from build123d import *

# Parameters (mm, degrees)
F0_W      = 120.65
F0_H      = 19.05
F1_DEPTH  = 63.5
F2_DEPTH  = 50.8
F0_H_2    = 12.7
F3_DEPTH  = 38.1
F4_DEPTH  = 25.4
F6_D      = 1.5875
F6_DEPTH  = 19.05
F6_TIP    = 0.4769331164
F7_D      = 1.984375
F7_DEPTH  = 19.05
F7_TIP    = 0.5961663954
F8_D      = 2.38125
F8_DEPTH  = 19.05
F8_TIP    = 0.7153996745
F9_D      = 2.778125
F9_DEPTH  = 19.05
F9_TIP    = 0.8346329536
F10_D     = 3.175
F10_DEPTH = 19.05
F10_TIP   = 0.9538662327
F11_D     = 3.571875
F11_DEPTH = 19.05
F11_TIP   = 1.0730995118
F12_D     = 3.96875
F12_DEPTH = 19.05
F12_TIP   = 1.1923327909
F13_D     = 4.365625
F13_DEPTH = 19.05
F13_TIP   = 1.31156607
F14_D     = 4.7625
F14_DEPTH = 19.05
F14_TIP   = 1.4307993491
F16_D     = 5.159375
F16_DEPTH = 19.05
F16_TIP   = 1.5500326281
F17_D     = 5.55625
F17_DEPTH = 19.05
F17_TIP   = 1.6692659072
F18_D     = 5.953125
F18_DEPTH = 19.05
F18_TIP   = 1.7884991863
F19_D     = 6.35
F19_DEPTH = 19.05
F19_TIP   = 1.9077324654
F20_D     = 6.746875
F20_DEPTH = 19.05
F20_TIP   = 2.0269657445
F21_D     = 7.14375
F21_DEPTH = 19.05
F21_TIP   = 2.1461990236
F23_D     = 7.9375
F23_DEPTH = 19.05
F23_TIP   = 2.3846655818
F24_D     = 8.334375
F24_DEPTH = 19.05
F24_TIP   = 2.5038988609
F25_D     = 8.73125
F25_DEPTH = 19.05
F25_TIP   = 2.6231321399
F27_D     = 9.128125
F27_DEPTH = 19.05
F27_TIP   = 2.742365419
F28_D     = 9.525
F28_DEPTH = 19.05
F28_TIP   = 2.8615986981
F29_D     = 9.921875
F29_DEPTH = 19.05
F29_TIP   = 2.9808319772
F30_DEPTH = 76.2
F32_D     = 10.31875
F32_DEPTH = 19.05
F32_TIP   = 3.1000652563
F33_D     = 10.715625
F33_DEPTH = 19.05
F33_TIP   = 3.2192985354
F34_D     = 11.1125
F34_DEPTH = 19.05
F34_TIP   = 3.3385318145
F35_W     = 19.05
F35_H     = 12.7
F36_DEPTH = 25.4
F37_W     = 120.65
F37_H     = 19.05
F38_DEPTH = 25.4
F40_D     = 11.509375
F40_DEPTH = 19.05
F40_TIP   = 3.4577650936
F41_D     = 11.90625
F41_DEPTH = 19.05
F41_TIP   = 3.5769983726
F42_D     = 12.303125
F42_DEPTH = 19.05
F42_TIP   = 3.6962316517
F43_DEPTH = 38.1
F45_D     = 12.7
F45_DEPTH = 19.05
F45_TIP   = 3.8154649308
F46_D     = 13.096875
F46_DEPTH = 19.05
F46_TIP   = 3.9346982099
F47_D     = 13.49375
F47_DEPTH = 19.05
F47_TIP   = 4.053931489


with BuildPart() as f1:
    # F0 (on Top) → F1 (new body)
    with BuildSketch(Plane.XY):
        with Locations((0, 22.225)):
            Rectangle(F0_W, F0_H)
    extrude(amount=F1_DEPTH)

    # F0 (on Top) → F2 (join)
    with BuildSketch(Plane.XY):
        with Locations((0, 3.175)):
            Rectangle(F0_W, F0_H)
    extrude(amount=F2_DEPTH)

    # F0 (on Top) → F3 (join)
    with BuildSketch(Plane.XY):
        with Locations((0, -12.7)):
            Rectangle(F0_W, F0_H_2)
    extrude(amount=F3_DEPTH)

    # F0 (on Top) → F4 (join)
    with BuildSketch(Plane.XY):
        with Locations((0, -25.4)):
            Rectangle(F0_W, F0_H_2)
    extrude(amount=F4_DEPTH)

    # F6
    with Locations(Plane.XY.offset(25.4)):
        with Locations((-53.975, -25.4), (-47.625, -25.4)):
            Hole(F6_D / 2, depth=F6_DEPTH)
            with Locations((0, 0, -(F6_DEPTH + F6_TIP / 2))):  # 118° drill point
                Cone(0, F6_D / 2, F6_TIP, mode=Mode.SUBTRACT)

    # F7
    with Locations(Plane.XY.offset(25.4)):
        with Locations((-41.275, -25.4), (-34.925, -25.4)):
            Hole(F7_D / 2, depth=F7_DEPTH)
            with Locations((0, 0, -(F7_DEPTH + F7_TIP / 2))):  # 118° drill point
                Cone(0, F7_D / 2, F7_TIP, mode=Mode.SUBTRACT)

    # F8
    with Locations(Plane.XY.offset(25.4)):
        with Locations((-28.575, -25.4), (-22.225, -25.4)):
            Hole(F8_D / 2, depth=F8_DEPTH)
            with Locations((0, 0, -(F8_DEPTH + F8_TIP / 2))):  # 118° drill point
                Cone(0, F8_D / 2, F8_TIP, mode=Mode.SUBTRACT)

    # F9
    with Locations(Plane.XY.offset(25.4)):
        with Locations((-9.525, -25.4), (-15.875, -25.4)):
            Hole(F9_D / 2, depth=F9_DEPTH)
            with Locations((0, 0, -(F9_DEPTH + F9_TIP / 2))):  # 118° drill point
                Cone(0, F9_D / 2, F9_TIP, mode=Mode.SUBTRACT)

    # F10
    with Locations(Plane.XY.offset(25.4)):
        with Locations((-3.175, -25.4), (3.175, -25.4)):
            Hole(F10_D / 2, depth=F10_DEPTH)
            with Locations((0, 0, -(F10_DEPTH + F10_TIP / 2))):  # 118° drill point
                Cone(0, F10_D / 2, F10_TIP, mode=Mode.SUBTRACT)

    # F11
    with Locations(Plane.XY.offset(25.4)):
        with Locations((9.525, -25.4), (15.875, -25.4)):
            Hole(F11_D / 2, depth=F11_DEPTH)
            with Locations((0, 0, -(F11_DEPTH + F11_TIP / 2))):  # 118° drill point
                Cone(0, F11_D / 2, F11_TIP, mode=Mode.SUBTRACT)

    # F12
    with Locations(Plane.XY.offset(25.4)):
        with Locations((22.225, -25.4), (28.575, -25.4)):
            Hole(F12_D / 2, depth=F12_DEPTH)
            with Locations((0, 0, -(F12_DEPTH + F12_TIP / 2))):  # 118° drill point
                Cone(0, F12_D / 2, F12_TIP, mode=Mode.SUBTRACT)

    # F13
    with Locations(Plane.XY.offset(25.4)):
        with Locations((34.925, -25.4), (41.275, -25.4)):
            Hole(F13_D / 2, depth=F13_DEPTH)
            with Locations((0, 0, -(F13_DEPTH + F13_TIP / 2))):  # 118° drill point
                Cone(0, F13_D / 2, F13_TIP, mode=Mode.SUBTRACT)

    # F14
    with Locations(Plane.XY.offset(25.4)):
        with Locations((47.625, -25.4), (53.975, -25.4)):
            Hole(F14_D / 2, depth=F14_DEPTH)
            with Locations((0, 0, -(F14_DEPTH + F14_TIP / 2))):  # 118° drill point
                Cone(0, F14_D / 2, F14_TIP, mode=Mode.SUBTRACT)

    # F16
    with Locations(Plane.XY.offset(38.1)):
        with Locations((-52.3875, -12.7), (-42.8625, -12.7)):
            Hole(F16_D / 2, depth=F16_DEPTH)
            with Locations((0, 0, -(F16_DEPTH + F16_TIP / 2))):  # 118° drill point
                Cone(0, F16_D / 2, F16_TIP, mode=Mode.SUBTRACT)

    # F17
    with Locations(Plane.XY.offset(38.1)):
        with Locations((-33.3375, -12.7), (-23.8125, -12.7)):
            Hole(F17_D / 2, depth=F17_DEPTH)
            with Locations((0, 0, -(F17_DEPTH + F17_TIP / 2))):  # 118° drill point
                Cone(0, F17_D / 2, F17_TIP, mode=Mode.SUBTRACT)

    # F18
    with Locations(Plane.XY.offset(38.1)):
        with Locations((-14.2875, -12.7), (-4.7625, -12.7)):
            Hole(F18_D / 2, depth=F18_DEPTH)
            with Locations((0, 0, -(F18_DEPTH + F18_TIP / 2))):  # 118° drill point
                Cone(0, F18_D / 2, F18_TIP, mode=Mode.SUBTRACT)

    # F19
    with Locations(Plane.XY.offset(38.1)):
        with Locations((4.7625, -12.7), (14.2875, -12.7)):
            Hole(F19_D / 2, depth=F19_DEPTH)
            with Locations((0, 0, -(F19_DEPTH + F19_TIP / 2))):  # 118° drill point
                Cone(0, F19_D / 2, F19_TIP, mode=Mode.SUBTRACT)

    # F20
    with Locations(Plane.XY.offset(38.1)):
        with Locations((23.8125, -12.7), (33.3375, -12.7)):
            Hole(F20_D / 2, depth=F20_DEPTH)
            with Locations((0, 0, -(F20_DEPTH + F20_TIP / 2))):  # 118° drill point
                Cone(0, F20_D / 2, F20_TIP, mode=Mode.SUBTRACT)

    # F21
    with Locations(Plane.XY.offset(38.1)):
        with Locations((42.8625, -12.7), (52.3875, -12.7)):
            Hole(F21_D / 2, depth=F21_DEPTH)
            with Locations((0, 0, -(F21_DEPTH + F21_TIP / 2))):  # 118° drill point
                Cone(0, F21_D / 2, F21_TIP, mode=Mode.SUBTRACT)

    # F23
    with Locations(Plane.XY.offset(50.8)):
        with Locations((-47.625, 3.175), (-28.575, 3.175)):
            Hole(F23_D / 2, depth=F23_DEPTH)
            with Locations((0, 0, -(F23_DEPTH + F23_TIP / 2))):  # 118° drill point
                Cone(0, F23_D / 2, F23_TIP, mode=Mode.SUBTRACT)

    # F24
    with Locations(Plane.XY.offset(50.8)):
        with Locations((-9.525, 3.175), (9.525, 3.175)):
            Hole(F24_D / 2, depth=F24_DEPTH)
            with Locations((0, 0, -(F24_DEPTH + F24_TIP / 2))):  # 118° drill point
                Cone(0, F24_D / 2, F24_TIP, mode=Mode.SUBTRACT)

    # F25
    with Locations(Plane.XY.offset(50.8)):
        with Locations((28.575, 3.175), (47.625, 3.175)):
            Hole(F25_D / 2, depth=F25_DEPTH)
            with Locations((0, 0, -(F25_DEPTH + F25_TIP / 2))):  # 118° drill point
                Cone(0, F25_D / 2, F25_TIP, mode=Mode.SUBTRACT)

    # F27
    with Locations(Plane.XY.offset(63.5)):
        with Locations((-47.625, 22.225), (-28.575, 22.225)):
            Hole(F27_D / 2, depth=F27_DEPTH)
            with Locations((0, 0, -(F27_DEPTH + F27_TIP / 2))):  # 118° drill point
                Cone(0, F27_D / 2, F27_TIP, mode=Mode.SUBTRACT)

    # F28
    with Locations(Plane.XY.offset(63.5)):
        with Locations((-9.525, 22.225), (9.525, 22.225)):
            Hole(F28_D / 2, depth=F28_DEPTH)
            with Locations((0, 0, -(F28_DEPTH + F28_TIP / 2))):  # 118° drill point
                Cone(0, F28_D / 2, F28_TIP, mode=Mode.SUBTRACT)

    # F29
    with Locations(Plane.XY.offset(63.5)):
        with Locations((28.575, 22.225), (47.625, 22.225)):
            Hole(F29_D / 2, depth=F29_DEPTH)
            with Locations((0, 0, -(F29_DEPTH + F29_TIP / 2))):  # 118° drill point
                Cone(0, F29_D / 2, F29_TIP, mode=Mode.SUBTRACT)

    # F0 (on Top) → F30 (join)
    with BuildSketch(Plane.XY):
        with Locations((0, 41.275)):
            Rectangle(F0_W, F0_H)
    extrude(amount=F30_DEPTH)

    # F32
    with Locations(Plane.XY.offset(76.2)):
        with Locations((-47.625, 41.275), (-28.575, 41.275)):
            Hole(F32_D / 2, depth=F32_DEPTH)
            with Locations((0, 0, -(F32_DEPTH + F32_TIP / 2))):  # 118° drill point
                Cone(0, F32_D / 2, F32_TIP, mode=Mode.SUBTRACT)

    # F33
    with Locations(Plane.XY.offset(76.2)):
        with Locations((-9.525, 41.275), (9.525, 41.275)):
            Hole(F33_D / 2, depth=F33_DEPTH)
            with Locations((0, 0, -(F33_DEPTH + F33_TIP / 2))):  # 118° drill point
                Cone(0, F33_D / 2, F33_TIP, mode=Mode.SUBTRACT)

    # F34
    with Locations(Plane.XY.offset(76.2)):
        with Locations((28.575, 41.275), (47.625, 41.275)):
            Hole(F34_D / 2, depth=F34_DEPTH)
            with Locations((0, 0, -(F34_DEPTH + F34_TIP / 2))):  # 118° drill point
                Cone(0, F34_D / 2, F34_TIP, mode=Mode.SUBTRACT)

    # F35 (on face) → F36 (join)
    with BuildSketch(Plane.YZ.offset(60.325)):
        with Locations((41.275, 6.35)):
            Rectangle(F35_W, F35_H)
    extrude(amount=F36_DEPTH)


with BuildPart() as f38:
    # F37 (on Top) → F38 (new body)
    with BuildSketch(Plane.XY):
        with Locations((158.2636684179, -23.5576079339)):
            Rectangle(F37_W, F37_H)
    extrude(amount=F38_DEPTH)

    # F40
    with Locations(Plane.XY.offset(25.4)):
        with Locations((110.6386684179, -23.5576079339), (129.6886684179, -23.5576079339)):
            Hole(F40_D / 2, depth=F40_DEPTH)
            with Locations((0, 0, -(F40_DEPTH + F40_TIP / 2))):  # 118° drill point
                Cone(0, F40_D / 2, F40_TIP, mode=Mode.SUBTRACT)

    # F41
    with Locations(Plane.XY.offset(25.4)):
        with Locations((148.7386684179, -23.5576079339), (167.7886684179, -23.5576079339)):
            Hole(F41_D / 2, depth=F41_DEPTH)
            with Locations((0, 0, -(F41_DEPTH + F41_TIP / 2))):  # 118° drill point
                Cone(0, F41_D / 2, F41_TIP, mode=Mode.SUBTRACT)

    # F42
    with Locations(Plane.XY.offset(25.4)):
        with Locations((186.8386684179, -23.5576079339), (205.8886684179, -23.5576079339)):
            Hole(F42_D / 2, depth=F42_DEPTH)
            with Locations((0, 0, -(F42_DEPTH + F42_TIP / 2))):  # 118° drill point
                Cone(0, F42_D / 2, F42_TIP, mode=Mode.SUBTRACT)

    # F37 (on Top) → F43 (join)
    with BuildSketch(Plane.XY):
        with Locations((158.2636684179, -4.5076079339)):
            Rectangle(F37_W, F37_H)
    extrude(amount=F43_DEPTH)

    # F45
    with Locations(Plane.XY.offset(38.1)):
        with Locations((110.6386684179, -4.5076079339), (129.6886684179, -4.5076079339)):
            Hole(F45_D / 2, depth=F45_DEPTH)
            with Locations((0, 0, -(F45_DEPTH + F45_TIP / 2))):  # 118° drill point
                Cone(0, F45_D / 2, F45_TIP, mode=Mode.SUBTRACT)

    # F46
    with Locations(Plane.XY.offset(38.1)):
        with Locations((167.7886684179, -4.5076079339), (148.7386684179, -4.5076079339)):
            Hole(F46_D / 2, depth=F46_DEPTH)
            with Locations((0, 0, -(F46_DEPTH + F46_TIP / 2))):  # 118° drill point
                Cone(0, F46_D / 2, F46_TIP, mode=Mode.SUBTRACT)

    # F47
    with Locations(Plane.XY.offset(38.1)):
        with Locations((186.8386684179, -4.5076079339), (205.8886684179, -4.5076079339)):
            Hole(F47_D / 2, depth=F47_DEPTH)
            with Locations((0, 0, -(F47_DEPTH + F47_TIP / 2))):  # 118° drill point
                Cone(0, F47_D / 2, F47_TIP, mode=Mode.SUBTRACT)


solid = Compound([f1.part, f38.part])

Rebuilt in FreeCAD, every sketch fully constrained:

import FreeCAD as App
import Part
import Sketcher
from FreeCAD import Vector
Q = App.Units.Quantity


def add_polygon(sketch, points):
    """Adds a closed chain of lines whose ends are joined by coincident constraints."""
    first, n = sketch.GeometryCount, len(points)
    for a, b in zip(points, points[1:] + points[:1]):
        sketch.addGeometry(Part.LineSegment(App.Vector(*a, 0), App.Vector(*b, 0)), False)
    for i in range(n):
        sketch.addConstraint(Sketcher.Constraint("Coincident", first + i, 2, first + (i + 1) % n, 1))

doc = App.newDocument("Part")
body = doc.addObject("PartDesign::Body", "Body")

sketch1 = body.newObject("Sketcher::SketchObject", "Sketch")
sketch1.AttachmentSupport = (doc.getObject("XY_Plane"), [""])
sketch1.MapMode = "FlatFace"
add_polygon(sketch1, [(-60.325, 31.75), (-60.325, 12.7), (60.325, 12.7), (60.325, 31.75)])
sketch1.addConstraint([
    Sketcher.Constraint("Vertical", 0),
    Sketcher.Constraint("Horizontal", 1),
    Sketcher.Constraint("Vertical", 2),
    Sketcher.Constraint("Horizontal", 3),
    Sketcher.Constraint("DistanceX", 1, 1, 1, 2, Q("4.75 in")),
    Sketcher.Constraint("DistanceY", 0, 2, 0, 1, Q("0.75 in")),
    Sketcher.Constraint("DistanceY", -1, 1, 0, 2, Q("0.5 in")),
    Sketcher.Constraint("DistanceX", 0, 2, -1, 1, Q("2.375 in")),
])
pad1 = body.newObject("PartDesign::Pad", "Pad")
pad1.Profile = sketch1
pad1.Length = Q("2.5 in")

sketch2 = body.newObject("Sketcher::SketchObject", "Sketch001")
sketch2.AttachmentSupport = (doc.getObject("XY_Plane"), [""])
sketch2.MapMode = "FlatFace"
add_polygon(sketch2, [(-60.325, 12.7), (-60.325, -6.35), (60.325, -6.35), (60.325, 12.7)])
sketch2.addConstraint([
    Sketcher.Constraint("Vertical", 0),
    Sketcher.Constraint("Horizontal", 1),
    Sketcher.Constraint("Vertical", 2),
    Sketcher.Constraint("Horizontal", 3),
    Sketcher.Constraint("DistanceX", 1, 1, 1, 2, Q("4.75 in")),
    Sketcher.Constraint("DistanceY", 0, 2, 0, 1, Q("0.75 in")),
    Sketcher.Constraint("DistanceY", -1, 1, 2, 2, Q("0.5 in")),
    Sketcher.Constraint("DistanceX", 0, 2, -1, 1, Q("2.375 in")),
])
pad2 = body.newObject("PartDesign::Pad", "Pad001")
pad2.Profile = sketch2
pad2.Length = Q("2 in")

sketch3 = body.newObject("Sketcher::SketchObject", "Sketch002")
sketch3.AttachmentSupport = (doc.getObject("XY_Plane"), [""])
sketch3.MapMode = "FlatFace"
add_polygon(sketch3, [(-60.325, -6.35), (-60.325, -19.05), (60.325, -19.05), (60.325, -6.35)])
sketch3.addConstraint([
    Sketcher.Constraint("Vertical", 0),
    Sketcher.Constraint("Horizontal", 1),
    Sketcher.Constraint("Vertical", 2),
    Sketcher.Constraint("Horizontal", 3),
    Sketcher.Constraint("DistanceY", 0, 2, 0, 1, Q("0.5 in")),
    Sketcher.Constraint("DistanceX", 1, 1, 1, 2, Q("4.75 in")),
    Sketcher.Constraint("DistanceY", 0, 2, -1, 1, Q("0.75 in")),
    Sketcher.Constraint("DistanceX", 0, 2, -1, 1, Q("2.375 in")),
])
pad3 = body.newObject("PartDesign::Pad", "Pad002")
pad3.Profile = sketch3
pad3.Length = Q("1.5 in")

sketch4 = body.newObject("Sketcher::SketchObject", "Sketch003")
sketch4.AttachmentSupport = (doc.getObject("XY_Plane"), [""])
sketch4.MapMode = "FlatFace"
add_polygon(sketch4, [(-60.325, -19.05), (-60.325, -31.75), (60.325, -31.75), (60.325, -19.05)])
sketch4.addConstraint([
    Sketcher.Constraint("Vertical", 0),
    Sketcher.Constraint("Horizontal", 1),
    Sketcher.Constraint("Vertical", 2),
    Sketcher.Constraint("Horizontal", 3),
    Sketcher.Constraint("DistanceY", 0, 2, 0, 1, Q("0.5 in")),
    Sketcher.Constraint("DistanceX", 1, 1, 1, 2, Q("4.75 in")),
    Sketcher.Constraint("DistanceY", 0, 2, -1, 1, Q("1.25 in")),
    Sketcher.Constraint("DistanceX", 0, 2, -1, 1, Q("2.375 in")),
])
pad4 = body.newObject("PartDesign::Pad", "Pad003")
pad4.Profile = sketch4
pad4.Length = Q("1 in")

sketch5 = body.newObject("Sketcher::SketchObject", "Sketch004")
sketch5.AttachmentSupport = (doc.getObject("XY_Plane"), [""])
sketch5.MapMode = "FlatFace"
sketch5.AttachmentOffset = App.Placement(Vector(0, 0, 1 * 25.4), App.Rotation())
sketch5.addGeometry([
    Part.Circle(Vector(-53.975, -25.4, 0), Vector(0, 0, 1), 0.79375),
    Part.Circle(Vector(-47.625, -25.4, 0), Vector(0, 0, 1), 0.79375),
], False)
sketch5.addConstraint([
    Sketcher.Constraint("Equal", 0, 1),
    Sketcher.Constraint("Horizontal", 0, 3, 1, 3),
    Sketcher.Constraint("Diameter", 0, Q("0.0625 in")),
    Sketcher.Constraint("DistanceY", 0, 3, -1, 1, Q("1 in")),
    Sketcher.Constraint("DistanceX", 0, 3, 1, 3, Q("0.25 in")),
    Sketcher.Constraint("DistanceX", 0, 3, -1, 1, Q("2.125 in")),
])
doc.recompute()
hole = body.newObject("PartDesign::Hole", "Hole")
hole.Profile = sketch5
hole.ThreadType = "None"
hole.Diameter = Q("0.0625 in")
hole.DepthType = "Dimension"
hole.Depth = Q("0.75 in")
hole.DrillPoint = "Angled"
hole.DrillPointAngle = 118

sketch6 = body.newObject("Sketcher::SketchObject", "Sketch005")
sketch6.AttachmentSupport = (doc.getObject("XY_Plane"), [""])
sketch6.MapMode = "FlatFace"
sketch6.AttachmentOffset = App.Placement(Vector(0, 0, 1 * 25.4), App.Rotation())
sketch6.addGeometry([
    Part.Circle(Vector(-41.275, -25.4, 0), Vector(0, 0, 1), 0.992188),
    Part.Circle(Vector(-34.925, -25.4, 0), Vector(0, 0, 1), 0.992188),
], False)
sketch6.addConstraint([
    Sketcher.Constraint("Equal", 0, 1),
    Sketcher.Constraint("Horizontal", 0, 3, 1, 3),
    Sketcher.Constraint("Diameter", 0, Q("0.078125 in")),
    Sketcher.Constraint("DistanceY", 0, 3, -1, 1, Q("1 in")),
    Sketcher.Constraint("DistanceX", 0, 3, 1, 3, Q("0.25 in")),
    Sketcher.Constraint("DistanceX", 0, 3, -1, 1, Q("1.625 in")),
])
doc.recompute()
hole2 = body.newObject("PartDesign::Hole", "Hole001")
hole2.Profile = sketch6
hole2.ThreadType = "None"
hole2.Diameter = Q("0.078125 in")
hole2.DepthType = "Dimension"
hole2.Depth = Q("0.75 in")
hole2.DrillPoint = "Angled"
hole2.DrillPointAngle = 118

sketch7 = body.newObject("Sketcher::SketchObject", "Sketch006")
sketch7.AttachmentSupport = (doc.getObject("XY_Plane"), [""])
sketch7.MapMode = "FlatFace"
sketch7.AttachmentOffset = App.Placement(Vector(0, 0, 1 * 25.4), App.Rotation())
sketch7.addGeometry([
    Part.Circle(Vector(-28.575, -25.4, 0), Vector(0, 0, 1), 1.190625),
    Part.Circle(Vector(-22.225, -25.4, 0), Vector(0, 0, 1), 1.190625),
], False)
sketch7.addConstraint([
    Sketcher.Constraint("Equal", 0, 1),
    Sketcher.Constraint("Horizontal", 0, 3, 1, 3),
    Sketcher.Constraint("Diameter", 0, Q("0.09375 in")),
    Sketcher.Constraint("DistanceY", 0, 3, -1, 1, Q("1 in")),
    Sketcher.Constraint("DistanceX", 0, 3, 1, 3, Q("0.25 in")),
    Sketcher.Constraint("DistanceX", 0, 3, -1, 1, Q("1.125 in")),
])
doc.recompute()
hole3 = body.newObject("PartDesign::Hole", "Hole002")
hole3.Profile = sketch7
hole3.ThreadType = "None"
hole3.Diameter = Q("0.09375 in")
hole3.DepthType = "Dimension"
hole3.Depth = Q("0.75 in")
hole3.DrillPoint = "Angled"
hole3.DrillPointAngle = 118

sketch8 = body.newObject("Sketcher::SketchObject", "Sketch007")
sketch8.AttachmentSupport = (doc.getObject("XY_Plane"), [""])
sketch8.MapMode = "FlatFace"
sketch8.AttachmentOffset = App.Placement(Vector(0, 0, 1 * 25.4), App.Rotation())
sketch8.addGeometry([
    Part.Circle(Vector(-9.525, -25.4, 0), Vector(0, 0, 1), 1.389063),
    Part.Circle(Vector(-15.875, -25.4, 0), Vector(0, 0, 1), 1.389063),
], False)
sketch8.addConstraint([
    Sketcher.Constraint("Equal", 0, 1),
    Sketcher.Constraint("Horizontal", 0, 3, 1, 3),
    Sketcher.Constraint("Diameter", 0, Q("0.109375 in")),
    Sketcher.Constraint("DistanceY", 0, 3, -1, 1, Q("1 in")),
    Sketcher.Constraint("DistanceX", 1, 3, 0, 3, Q("0.25 in")),
    Sketcher.Constraint("DistanceX", 0, 3, -1, 1, Q("0.375 in")),
])
doc.recompute()
hole4 = body.newObject("PartDesign::Hole", "Hole003")
hole4.Profile = sketch8
hole4.ThreadType = "None"
hole4.Diameter = Q("0.109375 in")
hole4.DepthType = "Dimension"
hole4.Depth = Q("0.75 in")
hole4.DrillPoint = "Angled"
hole4.DrillPointAngle = 118

sketch9 = body.newObject("Sketcher::SketchObject", "Sketch008")
sketch9.AttachmentSupport = (doc.getObject("XY_Plane"), [""])
sketch9.MapMode = "FlatFace"
sketch9.AttachmentOffset = App.Placement(Vector(0, 0, 1 * 25.4), App.Rotation())
sketch9.addGeometry([
    Part.Circle(Vector(-3.175, -25.4, 0), Vector(0, 0, 1), 1.5875),
    Part.Circle(Vector(3.175, -25.4, 0), Vector(0, 0, 1), 1.5875),
], False)
sketch9.addConstraint([
    Sketcher.Constraint("Equal", 0, 1),
    Sketcher.Constraint("Symmetric", 0, 3, 1, 3, -2),
    Sketcher.Constraint("Diameter", 0, Q("0.125 in")),
    Sketcher.Constraint("DistanceY", 0, 3, -1, 1, Q("1 in")),
    Sketcher.Constraint("DistanceX", 0, 3, 1, 3, Q("0.25 in")),
])
doc.recompute()
hole5 = body.newObject("PartDesign::Hole", "Hole004")
hole5.Profile = sketch9
hole5.ThreadType = "None"
hole5.Diameter = Q("0.125 in")
hole5.DepthType = "Dimension"
hole5.Depth = Q("0.75 in")
hole5.DrillPoint = "Angled"
hole5.DrillPointAngle = 118

sketch10 = body.newObject("Sketcher::SketchObject", "Sketch009")
sketch10.AttachmentSupport = (doc.getObject("XY_Plane"), [""])
sketch10.MapMode = "FlatFace"
sketch10.AttachmentOffset = App.Placement(Vector(0, 0, 1 * 25.4), App.Rotation())
sketch10.addGeometry([
    Part.Circle(Vector(9.525, -25.4, 0), Vector(0, 0, 1), 1.785937),
    Part.Circle(Vector(15.875, -25.4, 0), Vector(0, 0, 1), 1.785937),
], False)
sketch10.addConstraint([
    Sketcher.Constraint("Equal", 0, 1),
    Sketcher.Constraint("Horizontal", 0, 3, 1, 3),
    Sketcher.Constraint("Diameter", 0, Q("0.140625 in")),
    Sketcher.Constraint("DistanceY", 0, 3, -1, 1, Q("1 in")),
    Sketcher.Constraint("DistanceX", 0, 3, 1, 3, Q("0.25 in")),
    Sketcher.Constraint("DistanceX", -1, 1, 0, 3, Q("0.375 in")),
])
doc.recompute()
hole6 = body.newObject("PartDesign::Hole", "Hole005")
hole6.Profile = sketch10
hole6.ThreadType = "None"
hole6.Diameter = Q("0.140625 in")
hole6.DepthType = "Dimension"
hole6.Depth = Q("0.75 in")
hole6.DrillPoint = "Angled"
hole6.DrillPointAngle = 118

sketch11 = body.newObject("Sketcher::SketchObject", "Sketch010")
sketch11.AttachmentSupport = (doc.getObject("XY_Plane"), [""])
sketch11.MapMode = "FlatFace"
sketch11.AttachmentOffset = App.Placement(Vector(0, 0, 1 * 25.4), App.Rotation())
sketch11.addGeometry([
    Part.Circle(Vector(22.225, -25.4, 0), Vector(0, 0, 1), 1.984375),
    Part.Circle(Vector(28.575, -25.4, 0), Vector(0, 0, 1), 1.984375),
], False)
sketch11.addConstraint([
    Sketcher.Constraint("Equal", 0, 1),
    Sketcher.Constraint("Horizontal", 0, 3, 1, 3),
    Sketcher.Constraint("Diameter", 0, Q("0.15625 in")),
    Sketcher.Constraint("DistanceY", 0, 3, -1, 1, Q("1 in")),
    Sketcher.Constraint("DistanceX", 0, 3, 1, 3, Q("0.25 in")),
    Sketcher.Constraint("DistanceX", -1, 1, 0, 3, Q("0.875 in")),
])
doc.recompute()
hole7 = body.newObject("PartDesign::Hole", "Hole006")
hole7.Profile = sketch11
hole7.ThreadType = "None"
hole7.Diameter = Q("0.15625 in")
hole7.DepthType = "Dimension"
hole7.Depth = Q("0.75 in")
hole7.DrillPoint = "Angled"
hole7.DrillPointAngle = 118

sketch12 = body.newObject("Sketcher::SketchObject", "Sketch011")
sketch12.AttachmentSupport = (doc.getObject("XY_Plane"), [""])
sketch12.MapMode = "FlatFace"
sketch12.AttachmentOffset = App.Placement(Vector(0, 0, 1 * 25.4), App.Rotation())
sketch12.addGeometry([
    Part.Circle(Vector(34.925, -25.4, 0), Vector(0, 0, 1), 2.182812),
    Part.Circle(Vector(41.275, -25.4, 0), Vector(0, 0, 1), 2.182812),
], False)
sketch12.addConstraint([
    Sketcher.Constraint("Equal", 0, 1),
    Sketcher.Constraint("Horizontal", 0, 3, 1, 3),
    Sketcher.Constraint("Diameter", 0, Q("0.171875 in")),
    Sketcher.Constraint("DistanceY", 0, 3, -1, 1, Q("1 in")),
    Sketcher.Constraint("DistanceX", 0, 3, 1, 3, Q("0.25 in")),
    Sketcher.Constraint("DistanceX", -1, 1, 0, 3, Q("1.375 in")),
])
doc.recompute()
hole8 = body.newObject("PartDesign::Hole", "Hole007")
hole8.Profile = sketch12
hole8.ThreadType = "None"
hole8.Diameter = Q("0.171875 in")
hole8.DepthType = "Dimension"
hole8.Depth = Q("0.75 in")
hole8.DrillPoint = "Angled"
hole8.DrillPointAngle = 118

sketch13 = body.newObject("Sketcher::SketchObject", "Sketch012")
sketch13.AttachmentSupport = (doc.getObject("XY_Plane"), [""])
sketch13.MapMode = "FlatFace"
sketch13.AttachmentOffset = App.Placement(Vector(0, 0, 1 * 25.4), App.Rotation())
sketch13.addGeometry([
    Part.Circle(Vector(47.625, -25.4, 0), Vector(0, 0, 1), 2.38125),
    Part.Circle(Vector(53.975, -25.4, 0), Vector(0, 0, 1), 2.38125),
], False)
sketch13.addConstraint([
    Sketcher.Constraint("Equal", 0, 1),
    Sketcher.Constraint("Horizontal", 0, 3, 1, 3),
    Sketcher.Constraint("Diameter", 0, Q("0.1875 in")),
    Sketcher.Constraint("DistanceY", 0, 3, -1, 1, Q("1 in")),
    Sketcher.Constraint("DistanceX", 0, 3, 1, 3, Q("0.25 in")),
    Sketcher.Constraint("DistanceX", -1, 1, 0, 3, Q("1.875 in")),
])
doc.recompute()
hole9 = body.newObject("PartDesign::Hole", "Hole008")
hole9.Profile = sketch13
hole9.ThreadType = "None"
hole9.Diameter = Q("0.1875 in")
hole9.DepthType = "Dimension"
hole9.Depth = Q("0.75 in")
hole9.DrillPoint = "Angled"
hole9.DrillPointAngle = 118

sketch14 = body.newObject("Sketcher::SketchObject", "Sketch013")
sketch14.AttachmentSupport = (doc.getObject("XY_Plane"), [""])
sketch14.MapMode = "FlatFace"
sketch14.AttachmentOffset = App.Placement(Vector(0, 0, 1.5 * 25.4), App.Rotation())
sketch14.addGeometry([
    Part.Circle(Vector(-52.3875, -12.7, 0), Vector(0, 0, 1), 2.579687),
    Part.Circle(Vector(-42.8625, -12.7, 0), Vector(0, 0, 1), 2.579687),
], False)
sketch14.addConstraint([
    Sketcher.Constraint("Equal", 0, 1),
    Sketcher.Constraint("Horizontal", 0, 3, 1, 3),
    Sketcher.Constraint("Diameter", 0, Q("0.203125 in")),
    Sketcher.Constraint("DistanceY", 0, 3, -1, 1, Q("0.5 in")),
    Sketcher.Constraint("DistanceX", 0, 3, -1, 1, Q("2.0625 in")),
    Sketcher.Constraint("DistanceX", 1, 3, -1, 1, Q("1.6875 in")),
])
doc.recompute()
hole10 = body.newObject("PartDesign::Hole", "Hole009")
hole10.Profile = sketch14
hole10.ThreadType = "None"
hole10.Diameter = Q("0.203125 in")
hole10.DepthType = "Dimension"
hole10.Depth = Q("0.75 in")
hole10.DrillPoint = "Angled"
hole10.DrillPointAngle = 118

sketch15 = body.newObject("Sketcher::SketchObject", "Sketch014")
sketch15.AttachmentSupport = (doc.getObject("XY_Plane"), [""])
sketch15.MapMode = "FlatFace"
sketch15.AttachmentOffset = App.Placement(Vector(0, 0, 1.5 * 25.4), App.Rotation())
sketch15.addGeometry([
    Part.Circle(Vector(-33.3375, -12.7, 0), Vector(0, 0, 1), 2.778125),
    Part.Circle(Vector(-23.8125, -12.7, 0), Vector(0, 0, 1), 2.778125),
], False)
sketch15.addConstraint([
    Sketcher.Constraint("Equal", 0, 1),
    Sketcher.Constraint("Horizontal", 0, 3, 1, 3),
    Sketcher.Constraint("Diameter", 0, Q("0.21875 in")),
    Sketcher.Constraint("DistanceY", 0, 3, -1, 1, Q("0.5 in")),
    Sketcher.Constraint("DistanceX", 0, 3, -1, 1, Q("1.3125 in")),
    Sketcher.Constraint("DistanceX", 1, 3, -1, 1, Q("0.9375 in")),
])
doc.recompute()
hole11 = body.newObject("PartDesign::Hole", "Hole010")
hole11.Profile = sketch15
hole11.ThreadType = "None"
hole11.Diameter = Q("0.21875 in")
hole11.DepthType = "Dimension"
hole11.Depth = Q("0.75 in")
hole11.DrillPoint = "Angled"
hole11.DrillPointAngle = 118

sketch16 = body.newObject("Sketcher::SketchObject", "Sketch015")
sketch16.AttachmentSupport = (doc.getObject("XY_Plane"), [""])
sketch16.MapMode = "FlatFace"
sketch16.AttachmentOffset = App.Placement(Vector(0, 0, 1.5 * 25.4), App.Rotation())
sketch16.addGeometry([
    Part.Circle(Vector(-14.2875, -12.7, 0), Vector(0, 0, 1), 2.976562),
    Part.Circle(Vector(-4.7625, -12.7, 0), Vector(0, 0, 1), 2.976562),
], False)
sketch16.addConstraint([
    Sketcher.Constraint("Equal", 0, 1),
    Sketcher.Constraint("Horizontal", 0, 3, 1, 3),
    Sketcher.Constraint("Diameter", 0, Q("0.234375 in")),
    Sketcher.Constraint("DistanceY", 0, 3, -1, 1, Q("0.5 in")),
    Sketcher.Constraint("DistanceX", 0, 3, -1, 1, Q("0.5625 in")),
    Sketcher.Constraint("DistanceX", 1, 3, -1, 1, Q("0.1875 in")),
])
doc.recompute()
hole12 = body.newObject("PartDesign::Hole", "Hole011")
hole12.Profile = sketch16
hole12.ThreadType = "None"
hole12.Diameter = Q("0.234375 in")
hole12.DepthType = "Dimension"
hole12.Depth = Q("0.75 in")
hole12.DrillPoint = "Angled"
hole12.DrillPointAngle = 118

sketch17 = body.newObject("Sketcher::SketchObject", "Sketch016")
sketch17.AttachmentSupport = (doc.getObject("XY_Plane"), [""])
sketch17.MapMode = "FlatFace"
sketch17.AttachmentOffset = App.Placement(Vector(0, 0, 1.5 * 25.4), App.Rotation())
sketch17.addGeometry([
    Part.Circle(Vector(4.7625, -12.7, 0), Vector(0, 0, 1), 3.175),
    Part.Circle(Vector(14.2875, -12.7, 0), Vector(0, 0, 1), 3.175),
], False)
sketch17.addConstraint([
    Sketcher.Constraint("Equal", 0, 1),
    Sketcher.Constraint("Horizontal", 0, 3, 1, 3),
    Sketcher.Constraint("Diameter", 0, Q("0.25 in")),
    Sketcher.Constraint("DistanceY", 0, 3, -1, 1, Q("0.5 in")),
    Sketcher.Constraint("DistanceX", -1, 1, 0, 3, Q("0.1875 in")),
    Sketcher.Constraint("DistanceX", -1, 1, 1, 3, Q("0.5625 in")),
])
doc.recompute()
hole13 = body.newObject("PartDesign::Hole", "Hole012")
hole13.Profile = sketch17
hole13.ThreadType = "None"
hole13.Diameter = Q("0.25 in")
hole13.DepthType = "Dimension"
hole13.Depth = Q("0.75 in")
hole13.DrillPoint = "Angled"
hole13.DrillPointAngle = 118

sketch18 = body.newObject("Sketcher::SketchObject", "Sketch017")
sketch18.AttachmentSupport = (doc.getObject("XY_Plane"), [""])
sketch18.MapMode = "FlatFace"
sketch18.AttachmentOffset = App.Placement(Vector(0, 0, 1.5 * 25.4), App.Rotation())
sketch18.addGeometry([
    Part.Circle(Vector(23.8125, -12.7, 0), Vector(0, 0, 1), 3.373438),
    Part.Circle(Vector(33.3375, -12.7, 0), Vector(0, 0, 1), 3.373438),
], False)
sketch18.addConstraint([
    Sketcher.Constraint("Equal", 0, 1),
    Sketcher.Constraint("Horizontal", 0, 3, 1, 3),
    Sketcher.Constraint("Diameter", 0, Q("0.265625 in")),
    Sketcher.Constraint("DistanceY", 0, 3, -1, 1, Q("0.5 in")),
    Sketcher.Constraint("DistanceX", -1, 1, 0, 3, Q("0.9375 in")),
    Sketcher.Constraint("DistanceX", -1, 1, 1, 3, Q("1.3125 in")),
])
doc.recompute()
hole14 = body.newObject("PartDesign::Hole", "Hole013")
hole14.Profile = sketch18
hole14.ThreadType = "None"
hole14.Diameter = Q("0.265625 in")
hole14.DepthType = "Dimension"
hole14.Depth = Q("0.75 in")
hole14.DrillPoint = "Angled"
hole14.DrillPointAngle = 118

sketch19 = body.newObject("Sketcher::SketchObject", "Sketch018")
sketch19.AttachmentSupport = (doc.getObject("XY_Plane"), [""])
sketch19.MapMode = "FlatFace"
sketch19.AttachmentOffset = App.Placement(Vector(0, 0, 1.5 * 25.4), App.Rotation())
sketch19.addGeometry([
    Part.Circle(Vector(42.8625, -12.7, 0), Vector(0, 0, 1), 3.571875),
    Part.Circle(Vector(52.3875, -12.7, 0), Vector(0, 0, 1), 3.571875),
], False)
sketch19.addConstraint([
    Sketcher.Constraint("Equal", 0, 1),
    Sketcher.Constraint("Horizontal", 0, 3, 1, 3),
    Sketcher.Constraint("Diameter", 0, Q("0.28125 in")),
    Sketcher.Constraint("DistanceY", 0, 3, -1, 1, Q("0.5 in")),
    Sketcher.Constraint("DistanceX", -1, 1, 0, 3, Q("1.6875 in")),
    Sketcher.Constraint("DistanceX", -1, 1, 1, 3, Q("2.0625 in")),
])
doc.recompute()
hole15 = body.newObject("PartDesign::Hole", "Hole014")
hole15.Profile = sketch19
hole15.ThreadType = "None"
hole15.Diameter = Q("0.28125 in")
hole15.DepthType = "Dimension"
hole15.Depth = Q("0.75 in")
hole15.DrillPoint = "Angled"
hole15.DrillPointAngle = 118

sketch20 = body.newObject("Sketcher::SketchObject", "Sketch019")
sketch20.AttachmentSupport = (doc.getObject("XY_Plane"), [""])
sketch20.MapMode = "FlatFace"
sketch20.AttachmentOffset = App.Placement(Vector(0, 0, 2 * 25.4), App.Rotation())
sketch20.addGeometry([
    Part.Circle(Vector(-47.625, 3.175, 0), Vector(0, 0, 1), 3.96875),
    Part.Circle(Vector(-28.575, 3.175, 0), Vector(0, 0, 1), 3.96875),
], False)
sketch20.addConstraint([
    Sketcher.Constraint("Equal", 0, 1),
    Sketcher.Constraint("Horizontal", 0, 3, 1, 3),
    Sketcher.Constraint("Diameter", 0, Q("0.3125 in")),
    Sketcher.Constraint("DistanceX", 0, 3, 1, 3, Q("0.75 in")),
    Sketcher.Constraint("DistanceX", 0, 3, -1, 1, Q("1.875 in")),
    Sketcher.Constraint("DistanceY", -1, 1, 0, 3, Q("0.125 in")),
])
doc.recompute()
hole16 = body.newObject("PartDesign::Hole", "Hole015")
hole16.Profile = sketch20
hole16.ThreadType = "None"
hole16.Diameter = Q("0.3125 in")
hole16.DepthType = "Dimension"
hole16.Depth = Q("0.75 in")
hole16.DrillPoint = "Angled"
hole16.DrillPointAngle = 118

sketch21 = body.newObject("Sketcher::SketchObject", "Sketch020")
sketch21.AttachmentSupport = (doc.getObject("XY_Plane"), [""])
sketch21.MapMode = "FlatFace"
sketch21.AttachmentOffset = App.Placement(Vector(0, 0, 2 * 25.4), App.Rotation())
sketch21.addGeometry([
    Part.Circle(Vector(-9.525, 3.175, 0), Vector(0, 0, 1), 4.167187),
    Part.Circle(Vector(9.525, 3.175, 0), Vector(0, 0, 1), 4.167187),
], False)
sketch21.addConstraint([
    Sketcher.Constraint("Equal", 0, 1),
    Sketcher.Constraint("Symmetric", 0, 3, 1, 3, -2),
    Sketcher.Constraint("Diameter", 0, Q("0.328125 in")),
    Sketcher.Constraint("DistanceX", 0, 3, 1, 3, Q("0.75 in")),
    Sketcher.Constraint("DistanceY", -1, 1, 0, 3, Q("0.125 in")),
])
doc.recompute()
hole17 = body.newObject("PartDesign::Hole", "Hole016")
hole17.Profile = sketch21
hole17.ThreadType = "None"
hole17.Diameter = Q("0.328125 in")
hole17.DepthType = "Dimension"
hole17.Depth = Q("0.75 in")
hole17.DrillPoint = "Angled"
hole17.DrillPointAngle = 118

sketch22 = body.newObject("Sketcher::SketchObject", "Sketch021")
sketch22.AttachmentSupport = (doc.getObject("XY_Plane"), [""])
sketch22.MapMode = "FlatFace"
sketch22.AttachmentOffset = App.Placement(Vector(0, 0, 2 * 25.4), App.Rotation())
sketch22.addGeometry([
    Part.Circle(Vector(28.575, 3.175, 0), Vector(0, 0, 1), 4.365625),
    Part.Circle(Vector(47.625, 3.175, 0), Vector(0, 0, 1), 4.365625),
], False)
sketch22.addConstraint([
    Sketcher.Constraint("Equal", 0, 1),
    Sketcher.Constraint("Horizontal", 0, 3, 1, 3),
    Sketcher.Constraint("Diameter", 0, Q("0.34375 in")),
    Sketcher.Constraint("DistanceX", 0, 3, 1, 3, Q("0.75 in")),
    Sketcher.Constraint("DistanceX", -1, 1, 0, 3, Q("1.125 in")),
    Sketcher.Constraint("DistanceY", -1, 1, 0, 3, Q("0.125 in")),
])
doc.recompute()
hole18 = body.newObject("PartDesign::Hole", "Hole017")
hole18.Profile = sketch22
hole18.ThreadType = "None"
hole18.Diameter = Q("0.34375 in")
hole18.DepthType = "Dimension"
hole18.Depth = Q("0.75 in")
hole18.DrillPoint = "Angled"
hole18.DrillPointAngle = 118

sketch23 = body.newObject("Sketcher::SketchObject", "Sketch022")
sketch23.AttachmentSupport = (doc.getObject("XY_Plane"), [""])
sketch23.MapMode = "FlatFace"
sketch23.AttachmentOffset = App.Placement(Vector(0, 0, 2.5 * 25.4), App.Rotation())
sketch23.addGeometry([
    Part.Circle(Vector(-47.625, 22.225, 0), Vector(0, 0, 1), 4.564063),
    Part.Circle(Vector(-28.575, 22.225, 0), Vector(0, 0, 1), 4.564063),
], False)
sketch23.addConstraint([
    Sketcher.Constraint("Equal", 0, 1),
    Sketcher.Constraint("Horizontal", 0, 3, 1, 3),
    Sketcher.Constraint("Diameter", 0, Q("0.359375 in")),
    Sketcher.Constraint("DistanceX", 0, 3, 1, 3, Q("0.75 in")),
    Sketcher.Constraint("DistanceX", 0, 3, -1, 1, Q("1.875 in")),
    Sketcher.Constraint("DistanceY", -1, 1, 0, 3, Q("0.875 in")),
])
doc.recompute()
hole19 = body.newObject("PartDesign::Hole", "Hole018")
hole19.Profile = sketch23
hole19.ThreadType = "None"
hole19.Diameter = Q("0.359375 in")
hole19.DepthType = "Dimension"
hole19.Depth = Q("0.75 in")
hole19.DrillPoint = "Angled"
hole19.DrillPointAngle = 118

sketch24 = body.newObject("Sketcher::SketchObject", "Sketch023")
sketch24.AttachmentSupport = (doc.getObject("XY_Plane"), [""])
sketch24.MapMode = "FlatFace"
sketch24.AttachmentOffset = App.Placement(Vector(0, 0, 2.5 * 25.4), App.Rotation())
sketch24.addGeometry([
    Part.Circle(Vector(-9.525, 22.225, 0), Vector(0, 0, 1), 4.7625),
    Part.Circle(Vector(9.525, 22.225, 0), Vector(0, 0, 1), 4.7625),
], False)
sketch24.addConstraint([
    Sketcher.Constraint("Equal", 0, 1),
    Sketcher.Constraint("Symmetric", 0, 3, 1, 3, -2),
    Sketcher.Constraint("Diameter", 0, Q("0.375 in")),
    Sketcher.Constraint("DistanceX", 0, 3, 1, 3, Q("0.75 in")),
    Sketcher.Constraint("DistanceY", -1, 1, 0, 3, Q("0.875 in")),
])
doc.recompute()
hole20 = body.newObject("PartDesign::Hole", "Hole019")
hole20.Profile = sketch24
hole20.ThreadType = "None"
hole20.Diameter = Q("0.375 in")
hole20.DepthType = "Dimension"
hole20.Depth = Q("0.75 in")
hole20.DrillPoint = "Angled"
hole20.DrillPointAngle = 118

sketch25 = body.newObject("Sketcher::SketchObject", "Sketch024")
sketch25.AttachmentSupport = (doc.getObject("XY_Plane"), [""])
sketch25.MapMode = "FlatFace"
sketch25.AttachmentOffset = App.Placement(Vector(0, 0, 2.5 * 25.4), App.Rotation())
sketch25.addGeometry([
    Part.Circle(Vector(28.575, 22.225, 0), Vector(0, 0, 1), 4.960938),
    Part.Circle(Vector(47.625, 22.225, 0), Vector(0, 0, 1), 4.960938),
], False)
sketch25.addConstraint([
    Sketcher.Constraint("Equal", 0, 1),
    Sketcher.Constraint("Horizontal", 0, 3, 1, 3),
    Sketcher.Constraint("Diameter", 0, Q("0.390625 in")),
    Sketcher.Constraint("DistanceX", 0, 3, 1, 3, Q("0.75 in")),
    Sketcher.Constraint("DistanceX", -1, 1, 0, 3, Q("1.125 in")),
    Sketcher.Constraint("DistanceY", -1, 1, 0, 3, Q("0.875 in")),
])
doc.recompute()
hole21 = body.newObject("PartDesign::Hole", "Hole020")
hole21.Profile = sketch25
hole21.ThreadType = "None"
hole21.Diameter = Q("0.390625 in")
hole21.DepthType = "Dimension"
hole21.Depth = Q("0.75 in")
hole21.DrillPoint = "Angled"
hole21.DrillPointAngle = 118

sketch26 = body.newObject("Sketcher::SketchObject", "Sketch025")
sketch26.AttachmentSupport = (doc.getObject("XY_Plane"), [""])
sketch26.MapMode = "FlatFace"
add_polygon(sketch26, [(-60.325, 50.8), (-60.325, 31.75), (60.325, 31.75), (60.325, 50.8)])
sketch26.addConstraint([
    Sketcher.Constraint("Vertical", 0),
    Sketcher.Constraint("Horizontal", 1),
    Sketcher.Constraint("Vertical", 2),
    Sketcher.Constraint("Horizontal", 3),
    Sketcher.Constraint("DistanceY", -1, 1, 2, 2, Q("2 in")),
    Sketcher.Constraint("DistanceX", 1, 1, 1, 2, Q("4.75 in")),
    Sketcher.Constraint("DistanceY", 0, 2, 0, 1, Q("0.75 in")),
    Sketcher.Constraint("DistanceX", 0, 2, -1, 1, Q("2.375 in")),
])
pad5 = body.newObject("PartDesign::Pad", "Pad004")
pad5.Profile = sketch26
pad5.Length = Q("3 in")

sketch27 = body.newObject("Sketcher::SketchObject", "Sketch026")
sketch27.AttachmentSupport = (doc.getObject("XY_Plane"), [""])
sketch27.MapMode = "FlatFace"
sketch27.AttachmentOffset = App.Placement(Vector(0, 0, 3 * 25.4), App.Rotation())
sketch27.addGeometry([
    Part.Circle(Vector(-47.625, 41.275, 0), Vector(0, 0, 1), 5.159375),
    Part.Circle(Vector(-28.575, 41.275, 0), Vector(0, 0, 1), 5.159375),
], False)
sketch27.addConstraint([
    Sketcher.Constraint("Equal", 0, 1),
    Sketcher.Constraint("Horizontal", 0, 3, 1, 3),
    Sketcher.Constraint("Diameter", 0, Q("0.40625 in")),
    Sketcher.Constraint("DistanceX", 0, 3, 1, 3, Q("0.75 in")),
    Sketcher.Constraint("DistanceX", 0, 3, -1, 1, Q("1.875 in")),
    Sketcher.Constraint("DistanceY", -1, 1, 0, 3, Q("1.625 in")),
])
doc.recompute()
hole22 = body.newObject("PartDesign::Hole", "Hole021")
hole22.Profile = sketch27
hole22.ThreadType = "None"
hole22.Diameter = Q("0.40625 in")
hole22.DepthType = "Dimension"
hole22.Depth = Q("0.75 in")
hole22.DrillPoint = "Angled"
hole22.DrillPointAngle = 118

sketch28 = body.newObject("Sketcher::SketchObject", "Sketch027")
sketch28.AttachmentSupport = (doc.getObject("XY_Plane"), [""])
sketch28.MapMode = "FlatFace"
sketch28.AttachmentOffset = App.Placement(Vector(0, 0, 3 * 25.4), App.Rotation())
sketch28.addGeometry([
    Part.Circle(Vector(-9.525, 41.275, 0), Vector(0, 0, 1), 5.357812),
    Part.Circle(Vector(9.525, 41.275, 0), Vector(0, 0, 1), 5.357812),
], False)
sketch28.addConstraint([
    Sketcher.Constraint("Equal", 0, 1),
    Sketcher.Constraint("Symmetric", 0, 3, 1, 3, -2),
    Sketcher.Constraint("Diameter", 0, Q("0.421875 in")),
    Sketcher.Constraint("DistanceX", 0, 3, 1, 3, Q("0.75 in")),
    Sketcher.Constraint("DistanceY", -1, 1, 0, 3, Q("1.625 in")),
])
doc.recompute()
hole23 = body.newObject("PartDesign::Hole", "Hole022")
hole23.Profile = sketch28
hole23.ThreadType = "None"
hole23.Diameter = Q("0.421875 in")
hole23.DepthType = "Dimension"
hole23.Depth = Q("0.75 in")
hole23.DrillPoint = "Angled"
hole23.DrillPointAngle = 118

sketch29 = body.newObject("Sketcher::SketchObject", "Sketch028")
sketch29.AttachmentSupport = (doc.getObject("XY_Plane"), [""])
sketch29.MapMode = "FlatFace"
sketch29.AttachmentOffset = App.Placement(Vector(0, 0, 3 * 25.4), App.Rotation())
sketch29.addGeometry([
    Part.Circle(Vector(28.575, 41.275, 0), Vector(0, 0, 1), 5.55625),
    Part.Circle(Vector(47.625, 41.275, 0), Vector(0, 0, 1), 5.55625),
], False)
sketch29.addConstraint([
    Sketcher.Constraint("Equal", 0, 1),
    Sketcher.Constraint("Horizontal", 0, 3, 1, 3),
    Sketcher.Constraint("Diameter", 0, Q("0.4375 in")),
    Sketcher.Constraint("DistanceX", 0, 3, 1, 3, Q("0.75 in")),
    Sketcher.Constraint("DistanceX", -1, 1, 0, 3, Q("1.125 in")),
    Sketcher.Constraint("DistanceY", -1, 1, 0, 3, Q("1.625 in")),
])
doc.recompute()
hole24 = body.newObject("PartDesign::Hole", "Hole023")
hole24.Profile = sketch29
hole24.ThreadType = "None"
hole24.Diameter = Q("0.4375 in")
hole24.DepthType = "Dimension"
hole24.Depth = Q("0.75 in")
hole24.DrillPoint = "Angled"
hole24.DrillPointAngle = 118

sketch30 = body.newObject("Sketcher::SketchObject", "Sketch029")
sketch30.AttachmentSupport = (doc.getObject("YZ_Plane"), [""])
sketch30.MapMode = "FlatFace"
sketch30.AttachmentOffset = App.Placement(Vector(0, 0, 2.375 * 25.4), App.Rotation())
add_polygon(sketch30, [(31.75, 12.7), (31.75, 0), (50.8, 0), (50.8, 12.7)])
sketch30.addConstraint([
    Sketcher.Constraint("Vertical", 0),
    Sketcher.Constraint("Horizontal", 1),
    Sketcher.Constraint("Vertical", 2),
    Sketcher.Constraint("Horizontal", 3),
    Sketcher.Constraint("PointOnObject", 0, 2, -1),
    Sketcher.Constraint("DistanceY", 0, 2, 0, 1, Q("0.5 in")),
    Sketcher.Constraint("DistanceX", -1, 1, 1, 2, Q("2 in")),
    Sketcher.Constraint("DistanceX", 1, 1, 1, 2, Q("0.75 in")),
])
pad6 = body.newObject("PartDesign::Pad", "Pad005")
pad6.Profile = sketch30
pad6.Length = Q("1 in")
body2 = doc.addObject("PartDesign::Body", "Body001")

sketch31 = body2.newObject("Sketcher::SketchObject", "Sketch030")
sketch31.AttachmentSupport = (doc.getObject("XY_Plane001"), [""])
sketch31.MapMode = "FlatFace"
add_polygon(sketch31, [(97.938668, -14.032608), (97.938668, -33.082608), (218.588668, -33.082608), (218.588668, -14.032608)])
sketch31.addConstraint([
    Sketcher.Constraint("Vertical", 0),
    Sketcher.Constraint("Horizontal", 1),
    Sketcher.Constraint("Vertical", 2),
    Sketcher.Constraint("Horizontal", 3),
    Sketcher.Constraint("DistanceX", 1, 1, 1, 2, Q("4.75 in")),
    Sketcher.Constraint("DistanceY", 0, 2, 0, 1, Q("0.75 in")),
    Sketcher.Constraint("DistanceX", -1, 1, 0, 2, Q("97.938668 mm")),
    Sketcher.Constraint("DistanceY", 0, 2, -1, 1, Q("33.082608 mm")),
])
pad7 = body2.newObject("PartDesign::Pad", "Pad006")
pad7.Profile = sketch31
pad7.Length = Q("1 in")

sketch32 = body2.newObject("Sketcher::SketchObject", "Sketch031")
sketch32.AttachmentSupport = (doc.getObject("XY_Plane001"), [""])
sketch32.MapMode = "FlatFace"
sketch32.AttachmentOffset = App.Placement(Vector(0, 0, 1 * 25.4), App.Rotation())
sketch32.addGeometry([
    Part.Circle(Vector(110.638668, -23.557608, 0), Vector(0, 0, 1), 5.754688),
    Part.Circle(Vector(129.688668, -23.557608, 0), Vector(0, 0, 1), 5.754688),
], False)
sketch32.addConstraint([
    Sketcher.Constraint("Equal", 0, 1),
    Sketcher.Constraint("Horizontal", 0, 3, 1, 3),
    Sketcher.Constraint("Diameter", 0, Q("0.453125 in")),
    Sketcher.Constraint("DistanceX", 0, 3, 1, 3, Q("0.75 in")),
    Sketcher.Constraint("DistanceX", -1, 1, 0, 3, Q("110.638668 mm")),
    Sketcher.Constraint("DistanceY", 0, 3, -1, 1, Q("23.557608 mm")),
])
doc.recompute()
hole25 = body2.newObject("PartDesign::Hole", "Hole024")
hole25.Profile = sketch32
hole25.ThreadType = "None"
hole25.Diameter = Q("0.453125 in")
hole25.DepthType = "Dimension"
hole25.Depth = Q("0.75 in")
hole25.DrillPoint = "Angled"
hole25.DrillPointAngle = 118

sketch33 = body2.newObject("Sketcher::SketchObject", "Sketch032")
sketch33.AttachmentSupport = (doc.getObject("XY_Plane001"), [""])
sketch33.MapMode = "FlatFace"
sketch33.AttachmentOffset = App.Placement(Vector(0, 0, 1 * 25.4), App.Rotation())
sketch33.addGeometry([
    Part.Circle(Vector(148.738668, -23.557608, 0), Vector(0, 0, 1), 5.953125),
    Part.Circle(Vector(167.788668, -23.557608, 0), Vector(0, 0, 1), 5.953125),
], False)
sketch33.addConstraint([
    Sketcher.Constraint("Equal", 0, 1),
    Sketcher.Constraint("Horizontal", 0, 3, 1, 3),
    Sketcher.Constraint("Diameter", 0, Q("0.46875 in")),
    Sketcher.Constraint("DistanceX", 0, 3, 1, 3, Q("0.75 in")),
    Sketcher.Constraint("DistanceX", -1, 1, 0, 3, Q("148.738668 mm")),
    Sketcher.Constraint("DistanceY", 0, 3, -1, 1, Q("23.557608 mm")),
])
doc.recompute()
hole26 = body2.newObject("PartDesign::Hole", "Hole025")
hole26.Profile = sketch33
hole26.ThreadType = "None"
hole26.Diameter = Q("0.46875 in")
hole26.DepthType = "Dimension"
hole26.Depth = Q("0.75 in")
hole26.DrillPoint = "Angled"
hole26.DrillPointAngle = 118

sketch34 = body2.newObject("Sketcher::SketchObject", "Sketch033")
sketch34.AttachmentSupport = (doc.getObject("XY_Plane001"), [""])
sketch34.MapMode = "FlatFace"
sketch34.AttachmentOffset = App.Placement(Vector(0, 0, 1 * 25.4), App.Rotation())
sketch34.addGeometry([
    Part.Circle(Vector(186.838668, -23.557608, 0), Vector(0, 0, 1), 6.151562),
    Part.Circle(Vector(205.888668, -23.557608, 0), Vector(0, 0, 1), 6.151562),
], False)
sketch34.addConstraint([
    Sketcher.Constraint("Equal", 0, 1),
    Sketcher.Constraint("Horizontal", 0, 3, 1, 3),
    Sketcher.Constraint("Diameter", 0, Q("0.484375 in")),
    Sketcher.Constraint("DistanceX", 0, 3, 1, 3, Q("0.75 in")),
    Sketcher.Constraint("DistanceX", -1, 1, 0, 3, Q("186.838668 mm")),
    Sketcher.Constraint("DistanceY", 0, 3, -1, 1, Q("23.557608 mm")),
])
doc.recompute()
hole27 = body2.newObject("PartDesign::Hole", "Hole026")
hole27.Profile = sketch34
hole27.ThreadType = "None"
hole27.Diameter = Q("0.484375 in")
hole27.DepthType = "Dimension"
hole27.Depth = Q("0.75 in")
hole27.DrillPoint = "Angled"
hole27.DrillPointAngle = 118

sketch35 = body2.newObject("Sketcher::SketchObject", "Sketch034")
sketch35.AttachmentSupport = (doc.getObject("XY_Plane001"), [""])
sketch35.MapMode = "FlatFace"
add_polygon(sketch35, [(97.938668, 5.017392), (97.938668, -14.032608), (218.588668, -14.032608), (218.588668, 5.017392)])
sketch35.addConstraint([
    Sketcher.Constraint("Vertical", 0),
    Sketcher.Constraint("Horizontal", 1),
    Sketcher.Constraint("Vertical", 2),
    Sketcher.Constraint("Horizontal", 3),
    Sketcher.Constraint("DistanceX", 1, 1, 1, 2, Q("4.75 in")),
    Sketcher.Constraint("DistanceY", 0, 2, 0, 1, Q("0.75 in")),
    Sketcher.Constraint("DistanceX", -1, 1, 0, 2, Q("97.938668 mm")),
    Sketcher.Constraint("DistanceY", 0, 2, -1, 1, Q("14.032608 mm")),
])
pad8 = body2.newObject("PartDesign::Pad", "Pad007")
pad8.Profile = sketch35
pad8.Length = Q("1.5 in")

sketch36 = body2.newObject("Sketcher::SketchObject", "Sketch035")
sketch36.AttachmentSupport = (doc.getObject("XY_Plane001"), [""])
sketch36.MapMode = "FlatFace"
sketch36.AttachmentOffset = App.Placement(Vector(0, 0, 1.5 * 25.4), App.Rotation())
sketch36.addGeometry([
    Part.Circle(Vector(110.638668, -4.507608, 0), Vector(0, 0, 1), 6.35),
    Part.Circle(Vector(129.688668, -4.507608, 0), Vector(0, 0, 1), 6.35),
], False)
sketch36.addConstraint([
    Sketcher.Constraint("Equal", 0, 1),
    Sketcher.Constraint("Horizontal", 0, 3, 1, 3),
    Sketcher.Constraint("Diameter", 0, Q("0.5 in")),
    Sketcher.Constraint("DistanceX", 0, 3, 1, 3, Q("0.75 in")),
    Sketcher.Constraint("DistanceX", -1, 1, 0, 3, Q("110.638668 mm")),
    Sketcher.Constraint("DistanceY", 0, 3, -1, 1, Q("4.507608 mm")),
])
doc.recompute()
hole28 = body2.newObject("PartDesign::Hole", "Hole027")
hole28.Profile = sketch36
hole28.ThreadType = "None"
hole28.Diameter = Q("0.5 in")
hole28.DepthType = "Dimension"
hole28.Depth = Q("0.75 in")
hole28.DrillPoint = "Angled"
hole28.DrillPointAngle = 118

sketch37 = body2.newObject("Sketcher::SketchObject", "Sketch036")
sketch37.AttachmentSupport = (doc.getObject("XY_Plane001"), [""])
sketch37.MapMode = "FlatFace"
sketch37.AttachmentOffset = App.Placement(Vector(0, 0, 1.5 * 25.4), App.Rotation())
sketch37.addGeometry([
    Part.Circle(Vector(167.788668, -4.507608, 0), Vector(0, 0, 1), 6.548438),
    Part.Circle(Vector(148.738668, -4.507608, 0), Vector(0, 0, 1), 6.548438),
], False)
sketch37.addConstraint([
    Sketcher.Constraint("Equal", 0, 1),
    Sketcher.Constraint("Horizontal", 0, 3, 1, 3),
    Sketcher.Constraint("Diameter", 0, Q("0.515625 in")),
    Sketcher.Constraint("DistanceX", 1, 3, 0, 3, Q("0.75 in")),
    Sketcher.Constraint("DistanceX", -1, 1, 0, 3, Q("167.788668 mm")),
    Sketcher.Constraint("DistanceY", 0, 3, -1, 1, Q("4.507608 mm")),
])
doc.recompute()
hole29 = body2.newObject("PartDesign::Hole", "Hole028")
hole29.Profile = sketch37
hole29.ThreadType = "None"
hole29.Diameter = Q("0.515625 in")
hole29.DepthType = "Dimension"
hole29.Depth = Q("0.75 in")
hole29.DrillPoint = "Angled"
hole29.DrillPointAngle = 118

sketch38 = body2.newObject("Sketcher::SketchObject", "Sketch037")
sketch38.AttachmentSupport = (doc.getObject("XY_Plane001"), [""])
sketch38.MapMode = "FlatFace"
sketch38.AttachmentOffset = App.Placement(Vector(0, 0, 1.5 * 25.4), App.Rotation())
sketch38.addGeometry([
    Part.Circle(Vector(186.838668, -4.507608, 0), Vector(0, 0, 1), 6.746875),
    Part.Circle(Vector(205.888668, -4.507608, 0), Vector(0, 0, 1), 6.746875),
], False)
sketch38.addConstraint([
    Sketcher.Constraint("Equal", 0, 1),
    Sketcher.Constraint("Horizontal", 0, 3, 1, 3),
    Sketcher.Constraint("Diameter", 0, Q("0.53125 in")),
    Sketcher.Constraint("DistanceX", 0, 3, 1, 3, Q("0.75 in")),
    Sketcher.Constraint("DistanceX", -1, 1, 0, 3, Q("186.838668 mm")),
    Sketcher.Constraint("DistanceY", 0, 3, -1, 1, Q("4.507608 mm")),
])
doc.recompute()
hole30 = body2.newObject("PartDesign::Hole", "Hole029")
hole30.Profile = sketch38
hole30.ThreadType = "None"
hole30.Diameter = Q("0.53125 in")
hole30.DepthType = "Dimension"
hole30.Depth = Q("0.75 in")
hole30.DrillPoint = "Angled"
hole30.DrillPointAngle = 118

doc.recompute()
